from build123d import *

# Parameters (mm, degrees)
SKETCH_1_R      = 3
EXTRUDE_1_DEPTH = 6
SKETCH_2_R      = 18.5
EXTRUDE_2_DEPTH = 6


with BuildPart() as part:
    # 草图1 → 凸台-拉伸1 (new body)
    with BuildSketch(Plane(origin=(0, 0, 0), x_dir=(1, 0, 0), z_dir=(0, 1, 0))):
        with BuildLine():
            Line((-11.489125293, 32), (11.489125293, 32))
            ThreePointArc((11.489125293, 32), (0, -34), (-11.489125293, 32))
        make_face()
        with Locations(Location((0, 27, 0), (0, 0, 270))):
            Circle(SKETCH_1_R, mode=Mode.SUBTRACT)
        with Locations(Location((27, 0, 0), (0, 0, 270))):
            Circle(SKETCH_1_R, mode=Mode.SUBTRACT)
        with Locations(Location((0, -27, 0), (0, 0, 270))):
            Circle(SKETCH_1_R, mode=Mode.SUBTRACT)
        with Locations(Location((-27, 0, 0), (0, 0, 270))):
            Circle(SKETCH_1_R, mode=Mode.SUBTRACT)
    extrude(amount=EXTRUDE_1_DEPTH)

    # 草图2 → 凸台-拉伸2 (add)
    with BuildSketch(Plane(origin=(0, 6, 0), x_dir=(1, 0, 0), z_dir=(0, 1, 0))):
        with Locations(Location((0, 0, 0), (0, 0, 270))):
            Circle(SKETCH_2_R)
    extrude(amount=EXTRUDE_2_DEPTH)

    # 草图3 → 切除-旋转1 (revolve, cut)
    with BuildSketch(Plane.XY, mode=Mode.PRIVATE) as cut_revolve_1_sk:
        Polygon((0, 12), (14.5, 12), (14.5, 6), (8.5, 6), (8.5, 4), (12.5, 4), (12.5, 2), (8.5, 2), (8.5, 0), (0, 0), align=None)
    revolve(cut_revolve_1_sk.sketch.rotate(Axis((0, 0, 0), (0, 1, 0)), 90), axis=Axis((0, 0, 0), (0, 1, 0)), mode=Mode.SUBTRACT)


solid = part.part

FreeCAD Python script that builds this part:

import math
import FreeCAD as App
import Part
import Sketcher
from FreeCAD import Vector

doc = App.newDocument("Part")
params = doc.addObject("Spreadsheet::Sheet", "Params")
for row, (alias, value) in enumerate([
    ("sketch1_diameter", "6 mm"),
    ("sketch1_radius", "34 mm"),
    ("pad1_length", "6 mm"),
    ("sketch2_diameter", "37 mm"),
    ("pad2_length", "6 mm"),
    ("sketch3_width", "4 mm"),
    ("sketch3_width2", "6 mm"),
    ("sketch3_height", "12 mm"),
    ("sketch3_width3", "14.5 mm"),
    ("groove_angle", "360 deg"),
], start=1):
    params.set(f"A{row}", alias)
    params.set(f"B{row}", "=" + value)
    params.setAlias(f"B{row}", alias)

body = doc.addObject("PartDesign::Body", "Body")

# Sketch on XZ plane
sketch1 = doc.addObject("Sketcher::SketchObject", "Sketch")
body.addObject(sketch1)
sketch1.AttachmentSupport = (doc.XZ_Plane, [""])
sketch1.MapMode = "FlatFace"
sketch1.addGeometry([
    Part.LineSegment(Vector(11.5, -32, 0), Vector(-11.5, -32, 0)),  # 0
    Part.ArcOfCircle(Part.Circle(Vector(0, 0, 0), Vector(0, 0, 1), 34), math.radians(-70), math.radians(250)),  # 1
    Part.Circle(Vector(0, 27, 0), Vector(0, 0, 1), 3),  # 2
    Part.Circle(Vector(27, 0, 0), Vector(0, 0, 1), 3),  # 3
    Part.Circle(Vector(-27, 0, 0), Vector(0, 0, 1), 3),  # 4
    Part.Circle(Vector(0, -27, 0), Vector(0, 0, 1), 3),  # 5
], False)
sketch1.addConstraint([
    Sketcher.Constraint("Coincident", 0, 1, 1, 1),
    Sketcher.Constraint("Coincident", 1, 2, 0, 2),
    Sketcher.Constraint("Horizontal", 0),
    Sketcher.Constraint("Coincident", 1, 3, -1, 1),
    Sketcher.Constraint("Equal", 2, 3),
    Sketcher.Constraint("Equal", 3, 4),
    Sketcher.Constraint("Equal", 4, 5),
    Sketcher.Constraint("Symmetric", 3, 3, 4, 3, -1, 1),
    Sketcher.Constraint("Symmetric", 2, 3, 5, 3, -1, 1),
    Sketcher.Constraint("PointOnObject", 2, 3, -2),
    Sketcher.Constraint("PointOnObject", 3, 3, -1),
    Sketcher.Constraint("Diameter", 2, 6.0),
    Sketcher.Constraint("Radius", 1, 34.0),
    Sketcher.Constraint("DistanceY", -1, 1, 2, 3, 27.0),
    Sketcher.Constraint("DistanceX", -1, 1, 3, 3, 27.0),
    Sketcher.Constraint("DistanceY", 0, 1, -1, 1, 32.0),
])
sketch1.setExpression("Constraints[11]", "Params.sketch1_diameter")
sketch1.setExpression("Constraints[12]", "Params.sketch1_radius")
pad1 = doc.addObject("PartDesign::Pad", "Pad")
body.addObject(pad1)
pad1.Profile = sketch1
pad1.setExpression("Length", "Params.pad1_length")
pad1.Reversed = True

# Sketch on XZ plane
sketch2 = doc.addObject("Sketcher::SketchObject", "Sketch001")
body.addObject(sketch2)
sketch2.AttachmentSupport = (doc.XZ_Plane, [""])
sketch2.MapMode = "FlatFace"
sketch2.AttachmentOffset = App.Placement(Vector(0, 0, -6), App.Rotation())
sketch2.addGeometry(Part.Circle(Vector(0, 0, 0), Vector(0, 0, 1), 18), False)
sketch2.addConstraint([
    Sketcher.Constraint("Coincident", 0, 3, -1, 1),
    Sketcher.Constraint("Diameter", 0, 37.0),
])
sketch2.setExpression("Constraints[1]", "Params.sketch2_diameter")
pad2 = doc.addObject("PartDesign::Pad", "Pad001")
body.addObject(pad2)
pad2.Profile = sketch2
pad2.setExpression("Length", "Params.pad2_length")
pad2.Reversed = True

# Sketch on XY plane
sketch3 = doc.addObject("Sketcher::SketchObject", "Sketch002")
body.addObject(sketch3)
sketch3.AttachmentSupport = (doc.XY_Plane, [""])
sketch3.MapMode = "FlatFace"
sketch3.addGeometry([
    Part.LineSegment(Vector(14.5, 12, 0), Vector(0, 12, 0)),  # 0
    Part.LineSegment(Vector(0, 12, 0), Vector(0, 0, 0)),  # 1
    Part.LineSegment(Vector(0, 0, 0), Vector(8.5, 0, 0)),  # 2
    Part.LineSegment(Vector(8.5, 0, 0), Vector(8.5, 2, 0)),  # 3
    Part.LineSegment(Vector(8.5, 2, 0), Vector(12.5, 2, 0)),  # 4
    Part.LineSegment(Vector(12.5, 2, 0), Vector(12.5, 4, 0)),  # 5
    Part.LineSegment(Vector(12.5, 4, 0), Vector(8.5, 4, 0)),  # 6
    Part.LineSegment(Vector(8.5, 4, 0), Vector(8.5, 6, 0)),  # 7
    Part.LineSegment(Vector(8.5, 6, 0), Vector(14.5, 6, 0)),  # 8
    Part.LineSegment(Vector(14.5, 6, 0), Vector(14.5, 12, 0)),  # 9
], False)
sketch3.addConstraint([
    Sketcher.Constraint("Coincident", 0, 2, 1, 1),
    Sketcher.Constraint("Coincident", 1, 2, 2, 1),
    Sketcher.Constraint("Coincident", 2, 2, 3, 1),
    Sketcher.Constraint("Coincident", 3, 2, 4, 1),
    Sketcher.Constraint("Coincident", 4, 2, 5, 1),
    Sketcher.Constraint("Coincident", 5, 2, 6, 1),
    Sketcher.Constraint("Coincident", 6, 2, 7, 1),
    Sketcher.Constraint("Coincident", 7, 2, 8, 1),
    Sketcher.Constraint("Coincident", 8, 2, 9, 1),
    Sketcher.Constraint("Coincident", 9, 2, 0, 1),
    Sketcher.Constraint("Horizontal", 0),
    Sketcher.Constraint("Vertical", 1),
    Sketcher.Constraint("Horizontal", 2),
    Sketcher.Constraint("Vertical", 3),
    Sketcher.Constraint("Horizontal", 4),
    Sketcher.Constraint("Vertical", 5),
    Sketcher.Constraint("Horizontal", 6),
    Sketcher.Constraint("Vertical", 7),
    Sketcher.Constraint("Horizontal", 8),
    Sketcher.Constraint("Vertical", 9),
    Sketcher.Constraint("Coincident", 1, 2, -1, 1),
    Sketcher.Constraint("Vertical", 3, 2, 6, 2),
    Sketcher.Constraint("Equal", 3, 5),
    Sketcher.Constraint("Equal", 5, 7),
    Sketcher.Constraint("Equal", 8, 9),
    Sketcher.Constraint("DistanceX", 4, 1, 4, 2, 4.0),
    Sketcher.Constraint("DistanceX", 8, 1, 8, 2, 6.0),
    Sketcher.Constraint("DistanceY", 1, 2, 1, 1, 12.0),
    Sketcher.Constraint("DistanceX", 0, 2, 0, 1, 14.5),
])
sketch3.setExpression("Constraints[25]", "Params.sketch3_width")
sketch3.setExpression("Constraints[26]", "Params.sketch3_width2")
sketch3.setExpression("Constraints[27]", "Params.sketch3_height")
sketch3.setExpression("Constraints[28]", "Params.sketch3_width3")
groove = doc.addObject("PartDesign::Groove", "Groove")
body.addObject(groove)
groove.Profile = sketch3
groove.ReferenceAxis = (sketch3, ["V_Axis"])
groove.setExpression("Angle", "Params.groove_angle")

doc.recompute()
